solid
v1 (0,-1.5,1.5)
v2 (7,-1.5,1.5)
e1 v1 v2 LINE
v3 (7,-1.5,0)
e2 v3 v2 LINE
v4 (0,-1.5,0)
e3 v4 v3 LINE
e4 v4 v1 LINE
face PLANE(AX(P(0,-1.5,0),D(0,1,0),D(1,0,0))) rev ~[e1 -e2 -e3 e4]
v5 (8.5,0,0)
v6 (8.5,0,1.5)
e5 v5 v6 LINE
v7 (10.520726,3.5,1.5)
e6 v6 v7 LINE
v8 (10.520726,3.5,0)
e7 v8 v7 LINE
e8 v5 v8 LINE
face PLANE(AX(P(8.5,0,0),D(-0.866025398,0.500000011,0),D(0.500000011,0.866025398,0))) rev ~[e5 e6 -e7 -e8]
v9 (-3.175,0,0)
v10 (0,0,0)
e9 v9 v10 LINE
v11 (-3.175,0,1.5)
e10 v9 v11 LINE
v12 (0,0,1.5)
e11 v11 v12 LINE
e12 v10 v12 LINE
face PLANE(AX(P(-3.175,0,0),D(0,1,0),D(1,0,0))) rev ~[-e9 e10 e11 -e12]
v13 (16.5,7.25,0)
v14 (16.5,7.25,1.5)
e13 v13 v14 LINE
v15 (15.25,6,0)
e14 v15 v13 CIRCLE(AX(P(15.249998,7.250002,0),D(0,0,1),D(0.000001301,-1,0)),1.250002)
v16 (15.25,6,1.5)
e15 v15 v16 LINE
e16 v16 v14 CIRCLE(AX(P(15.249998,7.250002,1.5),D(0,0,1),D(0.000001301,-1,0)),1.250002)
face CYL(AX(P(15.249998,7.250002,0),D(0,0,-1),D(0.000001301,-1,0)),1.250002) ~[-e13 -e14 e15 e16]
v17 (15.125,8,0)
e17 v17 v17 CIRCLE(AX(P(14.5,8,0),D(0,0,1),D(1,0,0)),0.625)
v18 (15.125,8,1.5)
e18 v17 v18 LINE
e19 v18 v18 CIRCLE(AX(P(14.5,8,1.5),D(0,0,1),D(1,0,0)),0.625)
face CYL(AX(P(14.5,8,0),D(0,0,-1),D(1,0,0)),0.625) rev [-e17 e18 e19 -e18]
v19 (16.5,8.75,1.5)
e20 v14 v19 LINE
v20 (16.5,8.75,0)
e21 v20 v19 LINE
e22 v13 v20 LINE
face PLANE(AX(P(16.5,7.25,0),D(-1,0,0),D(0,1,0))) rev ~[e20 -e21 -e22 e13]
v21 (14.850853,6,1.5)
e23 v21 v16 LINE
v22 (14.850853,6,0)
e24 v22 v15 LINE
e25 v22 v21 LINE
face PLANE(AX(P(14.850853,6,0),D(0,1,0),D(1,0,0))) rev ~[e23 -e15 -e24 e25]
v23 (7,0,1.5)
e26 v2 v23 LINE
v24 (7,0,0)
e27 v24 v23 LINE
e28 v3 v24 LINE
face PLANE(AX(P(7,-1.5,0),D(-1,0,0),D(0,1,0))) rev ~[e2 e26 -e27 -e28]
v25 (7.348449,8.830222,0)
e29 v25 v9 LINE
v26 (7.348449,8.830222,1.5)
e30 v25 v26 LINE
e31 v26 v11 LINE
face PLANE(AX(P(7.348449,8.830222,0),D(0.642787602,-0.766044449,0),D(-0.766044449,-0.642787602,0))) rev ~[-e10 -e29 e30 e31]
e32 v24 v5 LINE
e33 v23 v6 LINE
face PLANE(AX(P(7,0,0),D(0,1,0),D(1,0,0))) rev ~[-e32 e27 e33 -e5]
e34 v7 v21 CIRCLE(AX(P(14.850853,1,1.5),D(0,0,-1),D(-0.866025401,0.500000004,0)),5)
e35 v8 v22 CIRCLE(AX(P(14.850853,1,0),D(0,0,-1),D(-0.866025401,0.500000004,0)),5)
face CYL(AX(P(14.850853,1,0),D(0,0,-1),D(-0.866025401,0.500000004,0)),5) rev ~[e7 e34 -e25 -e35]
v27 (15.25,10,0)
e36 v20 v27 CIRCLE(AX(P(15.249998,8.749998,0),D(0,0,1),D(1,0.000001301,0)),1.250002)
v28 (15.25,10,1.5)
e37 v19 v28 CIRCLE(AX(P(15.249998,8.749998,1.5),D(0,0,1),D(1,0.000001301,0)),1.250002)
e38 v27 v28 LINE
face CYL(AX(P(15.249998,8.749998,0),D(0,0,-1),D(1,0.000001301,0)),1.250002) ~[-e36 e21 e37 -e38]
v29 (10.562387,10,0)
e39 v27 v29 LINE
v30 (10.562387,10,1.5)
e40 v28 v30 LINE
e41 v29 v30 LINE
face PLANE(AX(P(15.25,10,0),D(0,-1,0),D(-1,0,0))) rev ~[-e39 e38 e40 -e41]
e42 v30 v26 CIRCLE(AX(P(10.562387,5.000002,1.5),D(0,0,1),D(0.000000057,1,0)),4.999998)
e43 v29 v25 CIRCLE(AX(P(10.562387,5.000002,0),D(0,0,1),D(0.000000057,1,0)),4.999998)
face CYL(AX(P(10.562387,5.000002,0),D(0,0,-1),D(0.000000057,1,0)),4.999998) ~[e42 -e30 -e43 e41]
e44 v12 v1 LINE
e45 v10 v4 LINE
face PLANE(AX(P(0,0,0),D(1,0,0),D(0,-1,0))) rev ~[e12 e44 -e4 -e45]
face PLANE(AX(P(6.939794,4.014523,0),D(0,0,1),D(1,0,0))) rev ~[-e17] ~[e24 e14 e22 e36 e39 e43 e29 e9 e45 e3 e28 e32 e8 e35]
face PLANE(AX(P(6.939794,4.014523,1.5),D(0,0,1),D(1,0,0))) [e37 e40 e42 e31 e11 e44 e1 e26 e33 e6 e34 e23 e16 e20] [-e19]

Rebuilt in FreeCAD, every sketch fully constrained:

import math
import FreeCAD as App
import Part
import Sketcher

V = App.Vector
Q = App.Units.Quantity

doc = App.newDocument("Part")
params = doc.addObject("Spreadsheet::Sheet", "Params")
for row, (alias, value) in enumerate([
    ("sketch1_radius", "5 mm"),
    ("sketch1_diameter", "1.25 mm"),
    ("sketch1_width", "7 mm"),
    ("sketch1_radius2", "1.250002 mm"),
    ("sketch1_width2", "1.5 mm"),
    ("pad1_length", "1.5 mm"),
], start=1):
    params.set(f"A{row}", alias)
    params.set(f"B{row}", "=" + value)
    params.setAlias(f"B{row}", alias)

body = doc.addObject("PartDesign::Body", "Body")

# Sketch on XY plane
sketch1 = body.newObject("Sketcher::SketchObject", "Sketch")
sketch1.AttachmentSupport = (doc.getObject("XY_Plane"), [""])
sketch1.MapMode = "FlatFace"
sketch1.addGeometry([
    Part.LineSegment(V(-3.17, 0, 0), V(0, 0, 0)),  # 0
    Part.LineSegment(V(0, 0, 0), V(0, -1.5, 0)),  # 1
    Part.LineSegment(V(0, -1.5, 0), V(7, -1.5, 0)),  # 2
    Part.LineSegment(V(7, -1.5, 0), V(7, 0, 0)),  # 3
    Part.LineSegment(V(7, 0, 0), V(8.5, 0, 0)),  # 4
    Part.LineSegment(V(8.5, 0, 0), V(10.52, 3.5, 0)),  # 5
    Part.ArcOfCircle(Part.Circle(V(14.85, 1, 0), V(0, 0, 1), 5), math.radians(90), math.radians(150)),  # 6
    Part.LineSegment(V(14.85, 6, 0), V(15.25, 6, 0)),  # 7
    Part.ArcOfCircle(Part.Circle(V(15.25, 7.25, 0), V(0, 0, 1), 1.25), math.radians(-90), math.radians(0)),  # 8
    Part.LineSegment(V(16.5, 7.25, 0), V(16.5, 8.75, 0)),  # 9
    Part.ArcOfCircle(Part.Circle(V(15.25, 8.75, 0), V(0, 0, 1), 1.25), math.radians(0), math.radians(90)),  # 10
    Part.LineSegment(V(15.25, 10, 0), V(10.56, 10, 0)),  # 11
    Part.ArcOfCircle(Part.Circle(V(10.56, 5, 0), V(0, 0, 1), 5), math.radians(90), math.radians(130)),  # 12
    Part.LineSegment(V(7.35, 8.83, 0), V(-3.17, 0, 0)),  # 13
    Part.Circle(V(14.5, 8, 0), V(0, 0, 1), 0.62),  # 14
], False)
sketch1.addConstraint([
    Sketcher.Constraint("Coincident", 0, 2, 1, 1),
    Sketcher.Constraint("Coincident", 1, 2, 2, 1),
    Sketcher.Constraint("Coincident", 2, 2, 3, 1),
    Sketcher.Constraint("Coincident", 3, 2, 4, 1),
    Sketcher.Constraint("Coincident", 4, 2, 5, 1),
    Sketcher.Constraint("Tangent", 5, 2, 6, 2),
    Sketcher.Constraint("Tangent", 6, 1, 7, 1),
    Sketcher.Constraint("Tangent", 7, 2, 8, 1),
    Sketcher.Constraint("Tangent", 8, 2, 9, 1),
    Sketcher.Constraint("Tangent", 9, 2, 10, 1),
    Sketcher.Constraint("Tangent", 10, 2, 11, 1),
    Sketcher.Constraint("Tangent", 11, 2, 12, 1),
    Sketcher.Constraint("Tangent", 12, 2, 13, 1),
    Sketcher.Constraint("Coincident", 13, 2, 0, 1),
    Sketcher.Constraint("Horizontal", 0),
    Sketcher.Constraint("Vertical", 1),
    Sketcher.Constraint("Horizontal", 2),
    Sketcher.Constraint("Vertical", 3),
    Sketcher.Constraint("Horizontal", 4),
    Sketcher.Constraint("Horizontal", 7),
    Sketcher.Constraint("Vertical", 9),
    Sketcher.Constraint("Horizontal", 11),
    Sketcher.Constraint("Coincident", 0, 2, -1, 1),
    Sketcher.Constraint("Equal", 8, 10),
    Sketcher.Constraint("Equal", 6, 12),
    Sketcher.Constraint("PointOnObject", 3, 2, -1),
    Sketcher.Constraint("Equal", 4, 1),
    Sketcher.Constraint("Equal", 3, 9),
    Sketcher.Constraint("Radius", 6, 5.0),
    Sketcher.Constraint("Diameter", 14, 1.25),
    Sketcher.Constraint("DistanceX", 2, 1, 2, 2, 7.0),
    Sketcher.Constraint("Angle", 5, Q("59.999999 deg")),
    Sketcher.Constraint("Angle", 13, Q("-140.000001 deg")),
    Sketcher.Constraint("Radius", 8, 1.250002),
    Sketcher.Constraint("DistanceX", 4, 1, 4, 2, 1.5),
    Sketcher.Constraint("DistanceY", -1, 1, 6, 3, 1.0),
    Sketcher.Constraint("DistanceY", -1, 1, 14, 3, 8.0),
    Sketcher.Constraint("DistanceX", 14, 3, 8, 2, 2.0),
    Sketcher.Constraint("DistanceX", -1, 1, 14, 3, 14.5),
    Sketcher.Constraint("DistanceX", 0, 1, 0, 2, 3.175),
])
sketch1.setExpression("Constraints[28]", "Params.sketch1_radius")
sketch1.setExpression("Constraints[29]", "Params.sketch1_diameter")
sketch1.setExpression("Constraints[30]", "Params.sketch1_width")
sketch1.setExpression("Constraints[33]", "Params.sketch1_radius2")
sketch1.setExpression("Constraints[34]", "Params.sketch1_width2")
pad1 = body.newObject("PartDesign::Pad", "Pad")
pad1.Profile = sketch1
pad1.setExpression("Length", "Params.pad1_length")

doc.recompute()
